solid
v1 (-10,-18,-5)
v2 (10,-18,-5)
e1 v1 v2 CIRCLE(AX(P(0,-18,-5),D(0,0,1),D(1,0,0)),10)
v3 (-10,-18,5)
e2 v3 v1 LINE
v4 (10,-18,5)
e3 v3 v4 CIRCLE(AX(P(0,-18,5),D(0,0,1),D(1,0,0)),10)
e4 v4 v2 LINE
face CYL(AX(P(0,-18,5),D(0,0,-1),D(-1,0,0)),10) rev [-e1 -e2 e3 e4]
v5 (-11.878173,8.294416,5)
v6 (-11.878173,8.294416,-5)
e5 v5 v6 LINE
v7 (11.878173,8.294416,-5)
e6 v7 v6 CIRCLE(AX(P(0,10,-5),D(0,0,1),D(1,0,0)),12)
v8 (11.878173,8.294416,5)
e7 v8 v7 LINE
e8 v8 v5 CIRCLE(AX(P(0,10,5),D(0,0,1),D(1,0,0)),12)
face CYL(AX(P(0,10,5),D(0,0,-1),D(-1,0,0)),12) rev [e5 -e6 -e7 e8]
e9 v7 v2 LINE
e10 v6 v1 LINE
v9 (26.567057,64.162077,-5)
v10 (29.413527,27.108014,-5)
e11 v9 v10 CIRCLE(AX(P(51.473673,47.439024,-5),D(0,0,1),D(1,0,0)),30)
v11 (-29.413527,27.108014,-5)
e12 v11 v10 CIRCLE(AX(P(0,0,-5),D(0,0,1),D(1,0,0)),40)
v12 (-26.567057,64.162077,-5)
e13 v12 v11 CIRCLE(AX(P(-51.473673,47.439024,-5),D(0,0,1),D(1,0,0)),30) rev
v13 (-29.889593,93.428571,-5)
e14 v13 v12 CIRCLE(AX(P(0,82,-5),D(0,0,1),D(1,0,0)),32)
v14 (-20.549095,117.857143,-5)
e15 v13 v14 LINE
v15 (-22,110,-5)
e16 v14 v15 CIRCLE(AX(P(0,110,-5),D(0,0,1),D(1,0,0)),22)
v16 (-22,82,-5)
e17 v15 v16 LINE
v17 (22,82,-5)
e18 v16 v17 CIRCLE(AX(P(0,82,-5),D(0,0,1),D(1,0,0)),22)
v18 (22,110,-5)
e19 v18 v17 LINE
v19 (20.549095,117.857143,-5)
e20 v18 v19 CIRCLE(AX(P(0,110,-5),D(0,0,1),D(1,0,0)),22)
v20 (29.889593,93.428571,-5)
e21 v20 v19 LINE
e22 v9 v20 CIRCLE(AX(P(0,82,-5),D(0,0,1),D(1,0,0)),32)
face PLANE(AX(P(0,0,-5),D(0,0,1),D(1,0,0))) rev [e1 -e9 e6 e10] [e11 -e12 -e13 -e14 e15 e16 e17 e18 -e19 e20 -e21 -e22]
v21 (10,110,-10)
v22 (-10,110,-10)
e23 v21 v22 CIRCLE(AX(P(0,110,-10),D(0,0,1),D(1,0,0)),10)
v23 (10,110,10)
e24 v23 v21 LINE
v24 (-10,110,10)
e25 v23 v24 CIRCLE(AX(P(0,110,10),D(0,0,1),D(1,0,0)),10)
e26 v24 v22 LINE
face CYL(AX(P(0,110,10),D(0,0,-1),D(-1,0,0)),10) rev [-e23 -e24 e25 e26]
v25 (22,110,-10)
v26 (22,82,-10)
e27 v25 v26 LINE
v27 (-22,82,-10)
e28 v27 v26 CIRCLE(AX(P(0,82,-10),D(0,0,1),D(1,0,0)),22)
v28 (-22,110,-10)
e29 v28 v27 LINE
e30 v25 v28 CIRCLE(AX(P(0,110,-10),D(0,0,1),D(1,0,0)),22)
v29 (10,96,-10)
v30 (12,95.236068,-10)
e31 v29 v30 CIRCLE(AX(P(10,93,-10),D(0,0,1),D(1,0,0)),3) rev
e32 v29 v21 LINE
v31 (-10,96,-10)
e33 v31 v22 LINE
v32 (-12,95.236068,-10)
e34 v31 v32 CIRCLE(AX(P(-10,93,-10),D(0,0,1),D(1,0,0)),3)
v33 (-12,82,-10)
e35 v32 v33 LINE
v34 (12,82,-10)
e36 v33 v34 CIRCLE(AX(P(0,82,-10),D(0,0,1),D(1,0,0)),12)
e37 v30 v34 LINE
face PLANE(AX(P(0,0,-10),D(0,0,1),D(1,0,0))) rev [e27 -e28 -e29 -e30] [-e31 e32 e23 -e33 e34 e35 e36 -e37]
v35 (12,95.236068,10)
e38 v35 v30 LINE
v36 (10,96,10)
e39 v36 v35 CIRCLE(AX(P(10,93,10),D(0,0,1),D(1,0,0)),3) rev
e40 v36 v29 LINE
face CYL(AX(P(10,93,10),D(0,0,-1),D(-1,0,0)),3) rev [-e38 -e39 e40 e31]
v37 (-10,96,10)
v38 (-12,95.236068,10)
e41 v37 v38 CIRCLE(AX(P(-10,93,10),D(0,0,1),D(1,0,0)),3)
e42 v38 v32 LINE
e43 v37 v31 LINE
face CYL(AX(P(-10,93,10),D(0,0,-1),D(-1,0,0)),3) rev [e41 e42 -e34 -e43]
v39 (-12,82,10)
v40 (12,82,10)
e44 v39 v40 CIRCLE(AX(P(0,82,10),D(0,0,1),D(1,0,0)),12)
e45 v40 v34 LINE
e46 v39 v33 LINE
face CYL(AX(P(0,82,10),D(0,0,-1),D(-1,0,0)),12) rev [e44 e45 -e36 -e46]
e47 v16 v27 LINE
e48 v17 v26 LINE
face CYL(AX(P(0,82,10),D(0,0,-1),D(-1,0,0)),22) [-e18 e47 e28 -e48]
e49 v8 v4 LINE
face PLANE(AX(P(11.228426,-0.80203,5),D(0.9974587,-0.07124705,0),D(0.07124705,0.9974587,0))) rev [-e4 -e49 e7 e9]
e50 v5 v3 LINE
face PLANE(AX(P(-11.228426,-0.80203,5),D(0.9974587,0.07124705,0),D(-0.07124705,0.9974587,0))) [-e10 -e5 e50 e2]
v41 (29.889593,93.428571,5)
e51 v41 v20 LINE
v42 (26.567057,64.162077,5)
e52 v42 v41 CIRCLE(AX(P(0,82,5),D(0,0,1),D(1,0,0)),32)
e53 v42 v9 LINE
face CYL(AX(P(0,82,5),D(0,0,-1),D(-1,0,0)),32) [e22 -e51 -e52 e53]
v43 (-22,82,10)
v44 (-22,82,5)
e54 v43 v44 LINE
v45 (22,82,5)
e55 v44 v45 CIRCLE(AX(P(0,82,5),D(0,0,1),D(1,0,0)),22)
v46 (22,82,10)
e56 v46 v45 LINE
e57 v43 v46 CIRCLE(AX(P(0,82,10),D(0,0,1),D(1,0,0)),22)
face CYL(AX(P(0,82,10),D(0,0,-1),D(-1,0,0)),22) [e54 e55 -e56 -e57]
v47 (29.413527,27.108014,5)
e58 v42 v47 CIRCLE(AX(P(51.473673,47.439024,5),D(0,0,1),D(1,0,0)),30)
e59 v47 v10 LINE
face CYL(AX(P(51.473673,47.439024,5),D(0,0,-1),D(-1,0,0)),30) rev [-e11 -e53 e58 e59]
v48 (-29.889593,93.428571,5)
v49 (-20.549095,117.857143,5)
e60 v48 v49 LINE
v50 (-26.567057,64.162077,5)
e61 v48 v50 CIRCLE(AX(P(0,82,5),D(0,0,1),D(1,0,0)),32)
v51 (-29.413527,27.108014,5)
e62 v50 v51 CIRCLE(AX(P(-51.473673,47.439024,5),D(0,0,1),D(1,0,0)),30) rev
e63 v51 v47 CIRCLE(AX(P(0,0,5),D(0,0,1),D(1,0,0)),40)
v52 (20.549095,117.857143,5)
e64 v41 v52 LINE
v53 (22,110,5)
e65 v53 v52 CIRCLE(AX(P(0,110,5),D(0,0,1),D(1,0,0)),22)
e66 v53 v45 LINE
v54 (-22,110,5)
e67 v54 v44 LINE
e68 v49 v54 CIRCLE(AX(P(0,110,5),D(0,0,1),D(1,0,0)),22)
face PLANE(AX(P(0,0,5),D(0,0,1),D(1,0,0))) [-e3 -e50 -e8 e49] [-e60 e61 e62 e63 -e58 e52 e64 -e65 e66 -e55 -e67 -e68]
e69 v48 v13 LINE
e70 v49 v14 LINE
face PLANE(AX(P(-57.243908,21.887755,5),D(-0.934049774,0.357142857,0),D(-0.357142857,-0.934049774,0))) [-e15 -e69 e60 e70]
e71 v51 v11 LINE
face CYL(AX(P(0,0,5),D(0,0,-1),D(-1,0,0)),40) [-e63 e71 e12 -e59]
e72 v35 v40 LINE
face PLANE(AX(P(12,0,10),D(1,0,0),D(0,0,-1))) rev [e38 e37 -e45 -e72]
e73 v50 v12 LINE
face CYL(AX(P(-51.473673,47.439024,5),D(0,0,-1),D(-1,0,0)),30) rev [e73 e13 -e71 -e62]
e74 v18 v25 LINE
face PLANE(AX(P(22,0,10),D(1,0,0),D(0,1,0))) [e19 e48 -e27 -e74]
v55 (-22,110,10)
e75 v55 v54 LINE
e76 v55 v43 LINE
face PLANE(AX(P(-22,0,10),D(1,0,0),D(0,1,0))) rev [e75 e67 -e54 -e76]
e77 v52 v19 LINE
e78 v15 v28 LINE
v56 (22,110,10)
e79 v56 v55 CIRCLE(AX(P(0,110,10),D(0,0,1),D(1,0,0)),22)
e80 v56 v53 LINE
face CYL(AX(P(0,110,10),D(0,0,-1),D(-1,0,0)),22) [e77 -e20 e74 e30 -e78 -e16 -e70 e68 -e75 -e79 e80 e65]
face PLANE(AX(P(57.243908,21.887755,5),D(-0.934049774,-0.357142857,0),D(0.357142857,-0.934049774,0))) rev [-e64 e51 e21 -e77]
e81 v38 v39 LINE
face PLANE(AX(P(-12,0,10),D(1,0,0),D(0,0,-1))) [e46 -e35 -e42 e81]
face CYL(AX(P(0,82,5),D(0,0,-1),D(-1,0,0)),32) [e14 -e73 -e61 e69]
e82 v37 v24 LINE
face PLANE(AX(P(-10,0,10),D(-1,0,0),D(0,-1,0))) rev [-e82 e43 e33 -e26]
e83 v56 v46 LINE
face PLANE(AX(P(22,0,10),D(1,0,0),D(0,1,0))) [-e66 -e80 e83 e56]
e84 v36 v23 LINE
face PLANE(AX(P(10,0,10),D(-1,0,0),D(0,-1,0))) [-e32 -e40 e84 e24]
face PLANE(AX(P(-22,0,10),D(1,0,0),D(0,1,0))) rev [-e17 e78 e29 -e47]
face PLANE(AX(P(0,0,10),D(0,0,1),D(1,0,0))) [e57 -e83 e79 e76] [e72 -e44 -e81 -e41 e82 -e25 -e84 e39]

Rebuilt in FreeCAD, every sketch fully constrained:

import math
import FreeCAD as App
import Part
import Sketcher
Q = App.Units.Quantity

doc = App.newDocument("Part")
body = doc.addObject("PartDesign::Body", "Body")

sketch1 = doc.addObject("Sketcher::SketchObject", "Sketch")
body.addObject(sketch1)
sketch1.AttachmentSupport = (doc.XY_Plane, [""])
sketch1.MapMode = "FlatFace"
sketch1.addGeometry(Part.LineSegment(App.Vector(22, 82, 0), App.Vector(22, 110, 0)), False)
sketch1.addGeometry(Part.ArcOfCircle(Part.Circle(App.Vector(0, 110, 0), App.Vector(0, 0, 1), 22), math.radians(0), math.radians(180)), False)
sketch1.addGeometry(Part.LineSegment(App.Vector(-22, 110, 0), App.Vector(-22, 82, 0)), False)
sketch1.addGeometry(Part.ArcOfCircle(Part.Circle(App.Vector(0, 82, 0), App.Vector(0, 0, 1), 22), math.radians(180), math.radians(360)), False)
sketch1.addGeometry(Part.ArcOfCircle(Part.Circle(App.Vector(10, 93, 0), App.Vector(0, 0, 1), 3), math.radians(48), math.radians(90)), False)
sketch1.addGeometry(Part.LineSegment(App.Vector(12, 95.2, 0), App.Vector(12, 82, 0)), False)
sketch1.addGeometry(Part.ArcOfCircle(Part.Circle(App.Vector(0, 82, 0), App.Vector(0, 0, 1), 12), math.radians(180), math.radians(360)), False)
sketch1.addGeometry(Part.LineSegment(App.Vector(-12, 82, 0), App.Vector(-12, 95.2, 0)), False)
sketch1.addGeometry(Part.ArcOfCircle(Part.Circle(App.Vector(-10, 93, 0), App.Vector(0, 0, 1), 3), math.radians(90), math.radians(132)), False)
sketch1.addGeometry(Part.LineSegment(App.Vector(-10, 96, 0), App.Vector(-10, 110, 0)), False)
sketch1.addGeometry(Part.ArcOfCircle(Part.Circle(App.Vector(0, 110, 0), App.Vector(0, 0, 1), 10), math.radians(0), math.radians(180)), False)
sketch1.addGeometry(Part.LineSegment(App.Vector(10, 110, 0), App.Vector(10, 96, 0)), False)
sketch1.addConstraint(Sketcher.Constraint("Tangent", 0, 2, 1, 1))
sketch1.addConstraint(Sketcher.Constraint("Tangent", 1, 2, 2, 1))
sketch1.addConstraint(Sketcher.Constraint("Tangent", 2, 2, 3, 1))
sketch1.addConstraint(Sketcher.Constraint("Tangent", 3, 2, 0, 1))
sketch1.addConstraint(Sketcher.Constraint("Coincident", 4, 1, 5, 1))
sketch1.addConstraint(Sketcher.Constraint("Tangent", 5, 2, 6, 2))
sketch1.addConstraint(Sketcher.Constraint("Tangent", 6, 1, 7, 1))
sketch1.addConstraint(Sketcher.Constraint("Coincident", 7, 2, 8, 2))
sketch1.addConstraint(Sketcher.Constraint("Coincident", 8, 1, 9, 1))
sketch1.addConstraint(Sketcher.Constraint("Tangent", 9, 2, 10, 2))
sketch1.addConstraint(Sketcher.Constraint("Tangent", 10, 1, 11, 1))
sketch1.addConstraint(Sketcher.Constraint("Coincident", 11, 2, 4, 2))
sketch1.addConstraint(Sketcher.Constraint("Vertical", 0))
sketch1.addConstraint(Sketcher.Constraint("Vertical", 2))
sketch1.addConstraint(Sketcher.Constraint("Vertical", 5))
sketch1.addConstraint(Sketcher.Constraint("Vertical", 7))
sketch1.addConstraint(Sketcher.Constraint("Vertical", 9))
sketch1.addConstraint(Sketcher.Constraint("Vertical", 11))
sketch1.addConstraint(Sketcher.Constraint("Coincident", 6, 3, 3, 3))
sketch1.addConstraint(Sketcher.Constraint("Coincident", 10, 3, 1, 3))
sketch1.addConstraint(Sketcher.Constraint("Equal", 4, 8))
sketch1.addConstraint(Sketcher.Constraint("Symmetric", 4, 3, 8, 3, -2))
sketch1.addConstraint(Sketcher.Constraint("PointOnObject", 1, 3, -2))
sketch1.addConstraint(Sketcher.Constraint("Vertical", 4, 3, 10, 1))
sketch1.addConstraint(Sketcher.Constraint("Radius", 1, Q("22 mm")))
sketch1.addConstraint(Sketcher.Constraint("Radius", 4, Q("3 mm")))
sketch1.addConstraint(Sketcher.Constraint("Radius", 6, Q("12 mm")))
sketch1.addConstraint(Sketcher.Constraint("Radius", 10, Q("10 mm")))
sketch1.addConstraint(Sketcher.Constraint("DistanceY", 0, 1, 0, 2, Q("28 mm")))
sketch1.addConstraint(Sketcher.Constraint("DistanceY", 9, 1, 9, 2, Q("14 mm")))
sketch1.addConstraint(Sketcher.Constraint("DistanceY", -1, 1, 1, 3, Q("110 mm")))
pad1 = doc.addObject("PartDesign::Pad", "Pad")
body.addObject(pad1)
pad1.Profile = sketch1
pad1.Length = 20
pad1.Midplane = True

sketch2 = doc.addObject("Sketcher::SketchObject", "Sketch001")
body.addObject(sketch2)
sketch2.AttachmentSupport = (doc.XY_Plane, [""])
sketch2.MapMode = "FlatFace"
sketch2.addGeometry(Part.LineSegment(App.Vector(-20.5, 117.9, 0), App.Vector(-29.9, 93.4, 0)), False)
sketch2.addGeometry(Part.ArcOfCircle(Part.Circle(App.Vector(0, 82, 0), App.Vector(0, 0, 1), 32), math.radians(159), math.radians(214)), False)
sketch2.addGeometry(Part.ArcOfCircle(Part.Circle(App.Vector(-51.5, 47.4, 0), App.Vector(0, 0, 1), 30), math.radians(-43), math.radians(34)), False)
sketch2.addGeometry(Part.ArcOfCircle(Part.Circle(App.Vector(0, 0, 0), App.Vector(0, 0, 1), 40), math.radians(137), math.radians(403)), False)
sketch2.addGeometry(Part.ArcOfCircle(Part.Circle(App.Vector(51.5, 47.4, 0), App.Vector(0, 0, 1), 30), math.radians(146), math.radians(223)), False)
sketch2.addGeometry(Part.ArcOfCircle(Part.Circle(App.Vector(0, 82, 0), App.Vector(0, 0, 1), 32), math.radians(-34), math.radians(21)), False)
sketch2.addGeometry(Part.LineSegment(App.Vector(29.9, 93.4, 0), App.Vector(20.5, 117.9, 0)), False)
sketch2.addGeometry(Part.ArcOfCircle(Part.Circle(App.Vector(0, 110, 0), App.Vector(0, 0, 1), 22), math.radians(0), math.radians(21)), False)
sketch2.addGeometry(Part.LineSegment(App.Vector(22, 110, 0), App.Vector(22, 82, 0)), False)
sketch2.addGeometry(Part.ArcOfCircle(Part.Circle(App.Vector(0, 82, 0), App.Vector(0, 0, 1), 22), math.radians(180), math.radians(360)), False)
sketch2.addGeometry(Part.LineSegment(App.Vector(-22, 82, 0), App.Vector(-22, 110, 0)), False)
sketch2.addGeometry(Part.ArcOfCircle(Part.Circle(App.Vector(0, 110, 0), App.Vector(0, 0, 1), 22), math.radians(159), math.radians(180)), False)
sketch2.addGeometry(Part.LineSegment(App.Vector(-10, -18, 0), App.Vector(-11.9, 8.3, 0)), False)
sketch2.addGeometry(Part.ArcOfCircle(Part.Circle(App.Vector(0, 10, 0), App.Vector(0, 0, 1), 12), math.radians(180), math.radians(188.17)), False)
sketch2.addGeometry(Part.ArcOfCircle(Part.Circle(App.Vector(0, 10, 0), App.Vector(0, 0, 1), 12), math.radians(0), math.radians(180)), False)
sketch2.addGeometry(Part.ArcOfCircle(Part.Circle(App.Vector(0, 10, 0), App.Vector(0, 0, 1), 12), math.radians(-8.17), math.radians(0)), False)
sketch2.addGeometry(Part.LineSegment(App.Vector(11.9, 8.3, 0), App.Vector(10, -18, 0)), False)
sketch2.addGeometry(Part.ArcOfCircle(Part.Circle(App.Vector(0, -18, 0), App.Vector(0, 0, 1), 10), math.radians(180), math.radians(360)), False)
sketch2.addConstraint(Sketcher.Constraint("Tangent", 0, 2, 1, 1))
sketch2.addConstraint(Sketcher.Constraint("Tangent", 1, 2, 2, 2))
sketch2.addConstraint(Sketcher.Constraint("Tangent", 2, 1, 3, 1))
sketch2.addConstraint(Sketcher.Constraint("Tangent", 3, 2, 4, 2))
sketch2.addConstraint(Sketcher.Constraint("Tangent", 4, 1, 5, 1))
sketch2.addConstraint(Sketcher.Constraint("Tangent", 5, 2, 6, 1))
sketch2.addConstraint(Sketcher.Constraint("Tangent", 6, 2, 7, 2))
sketch2.addConstraint(Sketcher.Constraint("Tangent", 7, 1, 8, 1))
sketch2.addConstraint(Sketcher.Constraint("Tangent", 8, 2, 9, 2))
sketch2.addConstraint(Sketcher.Constraint("Tangent", 9, 1, 10, 1))
sketch2.addConstraint(Sketcher.Constraint("Tangent", 10, 2, 11, 2))
sketch2.addConstraint(Sketcher.Constraint("Tangent", 11, 1, 0, 1))
sketch2.addConstraint(Sketcher.Constraint("Coincident", 12, 2, 13, 2))
sketch2.addConstraint(Sketcher.Constraint("Tangent", 13, 1, 14, 2))
sketch2.addConstraint(Sketcher.Constraint("Tangent", 14, 1, 15, 2))
sketch2.addConstraint(Sketcher.Constraint("Coincident", 15, 1, 16, 1))
sketch2.addConstraint(Sketcher.Constraint("Coincident", 16, 2, 17, 2))
sketch2.addConstraint(Sketcher.Constraint("Coincident", 17, 1, 12, 1))
sketch2.addConstraint(Sketcher.Constraint("Vertical", 8))
sketch2.addConstraint(Sketcher.Constraint("Vertical", 10))
sketch2.addConstraint(Sketcher.Constraint("Coincident", 3, 3, -1, 1))
sketch2.addConstraint(Sketcher.Constraint("Coincident", 5, 3, 1, 3))
sketch2.addConstraint(Sketcher.Constraint("Coincident", 9, 3, 1, 3))
sketch2.addConstraint(Sketcher.Constraint("Coincident", 11, 3, 7, 3))
sketch2.addConstraint(Sketcher.Constraint("Equal", 2, 4))
sketch2.addConstraint(Sketcher.Constraint("Equal", 1, 5))
sketch2.addConstraint(Sketcher.Constraint("Equal", 7, 9))
sketch2.addConstraint(Sketcher.Constraint("Equal", 13, 14))
sketch2.addConstraint(Sketcher.Constraint("Equal", 14, 15))
sketch2.addConstraint(Sketcher.Constraint("Symmetric", 13, 1, 14, 1, -2))
sketch2.addConstraint(Sketcher.Constraint("Symmetric", 16, 2, 17, 1, -2))
sketch2.addConstraint(Sketcher.Constraint("PointOnObject", 1, 3, -2))
sketch2.addConstraint(Sketcher.Constraint("Horizontal", 15, 3, 13, 1))
sketch2.addConstraint(Sketcher.Constraint("Horizontal", 12, 2, 15, 1))
sketch2.addConstraint(Sketcher.Constraint("Horizontal", 17, 3, 16, 2))
sketch2.addConstraint(Sketcher.Constraint("Radius", 1, Q("32 mm")))
sketch2.addConstraint(Sketcher.Constraint("Radius", 2, Q("30 mm")))
sketch2.addConstraint(Sketcher.Constraint("Radius", 3, Q("40 mm")))
sketch2.addConstraint(Sketcher.Constraint("Radius", 7, Q("22 mm")))
sketch2.addConstraint(Sketcher.Constraint("Radius", 13, Q("12 mm")))
sketch2.addConstraint(Sketcher.Constraint("Radius", 17, Q("10 mm")))
sketch2.addConstraint(Sketcher.Constraint("DistanceY", 8, 2, 8, 1, Q("28 mm")))
sketch2.addConstraint(Sketcher.Constraint("DistanceY", -1, 1, 1, 3, Q("82 mm")))
sketch2.addConstraint(Sketcher.Constraint("DistanceY", -1, 1, 13, 3, Q("10 mm")))
sketch2.addConstraint(Sketcher.Constraint("DistanceY", 17, 3, -1, 1, Q("18 mm")))
sketch2.addConstraint(Sketcher.Constraint("Distance", 12, Q("26.361408 mm")))
pad2 = doc.addObject("PartDesign::Pad", "Pad001")
body.addObject(pad2)
pad2.Profile = sketch2
pad2.Length = 10
pad2.Midplane = True

doc.recompute()
